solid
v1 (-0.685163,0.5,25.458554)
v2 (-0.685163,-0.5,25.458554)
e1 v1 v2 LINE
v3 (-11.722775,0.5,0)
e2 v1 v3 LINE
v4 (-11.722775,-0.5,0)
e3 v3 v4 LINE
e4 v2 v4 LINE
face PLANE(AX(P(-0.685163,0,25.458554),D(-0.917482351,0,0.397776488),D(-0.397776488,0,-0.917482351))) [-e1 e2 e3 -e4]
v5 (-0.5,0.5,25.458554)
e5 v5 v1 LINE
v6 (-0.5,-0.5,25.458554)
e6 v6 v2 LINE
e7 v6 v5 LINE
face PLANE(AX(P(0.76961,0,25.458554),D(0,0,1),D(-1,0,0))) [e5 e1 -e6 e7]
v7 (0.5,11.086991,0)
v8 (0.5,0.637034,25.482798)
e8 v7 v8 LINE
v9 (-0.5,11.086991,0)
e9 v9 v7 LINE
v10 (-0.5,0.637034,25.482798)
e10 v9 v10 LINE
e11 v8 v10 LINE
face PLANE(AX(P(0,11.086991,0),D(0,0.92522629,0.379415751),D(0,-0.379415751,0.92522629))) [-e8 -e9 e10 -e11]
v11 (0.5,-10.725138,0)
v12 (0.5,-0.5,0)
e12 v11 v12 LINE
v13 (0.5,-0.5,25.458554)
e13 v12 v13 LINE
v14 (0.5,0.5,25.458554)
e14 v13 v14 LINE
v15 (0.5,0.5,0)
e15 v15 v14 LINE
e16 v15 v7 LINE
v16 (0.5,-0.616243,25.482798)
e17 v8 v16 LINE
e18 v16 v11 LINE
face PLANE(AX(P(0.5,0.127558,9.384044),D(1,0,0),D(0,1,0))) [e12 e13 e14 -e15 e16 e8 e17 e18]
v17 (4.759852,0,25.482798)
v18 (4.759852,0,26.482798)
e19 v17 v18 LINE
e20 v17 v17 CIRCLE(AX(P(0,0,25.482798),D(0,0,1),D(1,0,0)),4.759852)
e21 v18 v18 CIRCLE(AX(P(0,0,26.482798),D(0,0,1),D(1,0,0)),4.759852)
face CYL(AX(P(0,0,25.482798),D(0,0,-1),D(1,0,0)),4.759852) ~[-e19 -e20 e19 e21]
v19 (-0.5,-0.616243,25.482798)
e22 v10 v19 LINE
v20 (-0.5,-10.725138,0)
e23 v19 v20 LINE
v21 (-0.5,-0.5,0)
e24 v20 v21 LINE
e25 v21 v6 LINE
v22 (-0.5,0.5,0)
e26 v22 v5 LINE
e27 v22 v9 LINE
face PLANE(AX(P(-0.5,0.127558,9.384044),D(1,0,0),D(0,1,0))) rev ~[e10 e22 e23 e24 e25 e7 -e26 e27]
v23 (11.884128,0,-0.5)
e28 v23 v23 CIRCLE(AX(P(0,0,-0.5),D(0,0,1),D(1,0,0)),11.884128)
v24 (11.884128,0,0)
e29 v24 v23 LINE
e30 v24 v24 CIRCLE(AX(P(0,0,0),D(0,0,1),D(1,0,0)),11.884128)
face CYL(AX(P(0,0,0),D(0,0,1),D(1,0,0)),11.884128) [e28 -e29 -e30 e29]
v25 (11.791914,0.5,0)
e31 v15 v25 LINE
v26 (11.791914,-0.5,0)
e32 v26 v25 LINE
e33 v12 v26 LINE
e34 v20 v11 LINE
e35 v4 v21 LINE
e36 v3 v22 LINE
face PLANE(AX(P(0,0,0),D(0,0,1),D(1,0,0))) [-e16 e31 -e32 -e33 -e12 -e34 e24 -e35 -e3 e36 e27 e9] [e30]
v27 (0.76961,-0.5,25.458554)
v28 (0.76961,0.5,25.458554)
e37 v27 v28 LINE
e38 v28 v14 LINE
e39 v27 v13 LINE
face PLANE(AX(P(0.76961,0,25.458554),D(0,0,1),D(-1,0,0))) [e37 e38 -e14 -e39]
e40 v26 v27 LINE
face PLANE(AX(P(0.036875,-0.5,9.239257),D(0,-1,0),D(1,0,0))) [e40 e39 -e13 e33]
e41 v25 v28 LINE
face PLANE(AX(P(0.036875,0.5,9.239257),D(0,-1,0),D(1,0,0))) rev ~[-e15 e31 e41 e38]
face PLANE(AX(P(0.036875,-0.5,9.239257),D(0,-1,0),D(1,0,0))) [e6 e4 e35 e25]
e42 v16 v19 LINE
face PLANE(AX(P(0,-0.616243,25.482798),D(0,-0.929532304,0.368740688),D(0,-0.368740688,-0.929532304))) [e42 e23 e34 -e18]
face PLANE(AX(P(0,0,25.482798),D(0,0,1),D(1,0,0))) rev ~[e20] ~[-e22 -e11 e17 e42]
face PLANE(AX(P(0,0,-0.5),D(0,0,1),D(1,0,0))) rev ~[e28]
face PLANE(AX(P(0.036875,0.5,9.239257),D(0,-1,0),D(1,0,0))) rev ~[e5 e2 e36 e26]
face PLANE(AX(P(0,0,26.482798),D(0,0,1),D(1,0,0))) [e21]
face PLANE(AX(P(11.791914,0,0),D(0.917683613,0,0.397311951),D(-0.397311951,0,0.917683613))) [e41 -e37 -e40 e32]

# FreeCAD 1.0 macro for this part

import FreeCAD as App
import Part
import Sketcher
Q = App.Units.Quantity

doc = App.newDocument("Part")
body = doc.addObject("PartDesign::Body", "Body")

sketch1 = doc.addObject("Sketcher::SketchObject", "Sketch")
body.addObject(sketch1)
sketch1.AttachmentSupport = (doc.XZ_Plane, [""])
sketch1.MapMode = "FlatFace"
sketch1.addGeometry(Part.LineSegment(App.Vector(0.8, 25.5, 0), App.Vector(-0.7, 25.5, 0)), False)
sketch1.addGeometry(Part.LineSegment(App.Vector(-0.7, 25.5, 0), App.Vector(-11.7, 0, 0)), False)
sketch1.addGeometry(Part.LineSegment(App.Vector(-11.7, 0, 0), App.Vector(11.8, 0, 0)), False)
sketch1.addGeometry(Part.LineSegment(App.Vector(11.8, 0, 0), App.Vector(0.8, 25.5, 0)), False)
sketch1.addConstraint(Sketcher.Constraint("Coincident", 0, 2, 1, 1))
sketch1.addConstraint(Sketcher.Constraint("Coincident", 1, 2, 2, 1))
sketch1.addConstraint(Sketcher.Constraint("Coincident", 2, 2, 3, 1))
sketch1.addConstraint(Sketcher.Constraint("Coincident", 3, 2, 0, 1))
sketch1.addConstraint(Sketcher.Constraint("Horizontal", 0))
sketch1.addConstraint(Sketcher.Constraint("Horizontal", 2))
sketch1.addConstraint(Sketcher.Constraint("PointOnObject", 1, 2, -1))
sketch1.addConstraint(Sketcher.Constraint("DistanceX", 2, 1, 2, 2, Q("23.514689 mm")))
sketch1.addConstraint(Sketcher.Constraint("Distance", 3, Q("27.742191 mm")))
sketch1.addConstraint(Sketcher.Constraint("DistanceX", 0, 2, 0, 1, Q("1.454773 mm")))
sketch1.addConstraint(Sketcher.Constraint("DistanceX", -1, 1, 3, 2, Q("0.76961 mm")))
sketch1.addConstraint(Sketcher.Constraint("Distance", 1, Q("27.748277 mm")))
pad1 = doc.addObject("PartDesign::Pad", "Pad")
body.addObject(pad1)
pad1.Profile = sketch1
pad1.Length = 1
pad1.Midplane = True

sketch2 = doc.addObject("Sketcher::SketchObject", "Sketch001")
body.addObject(sketch2)
sketch2.AttachmentSupport = (doc.YZ_Plane, [""])
sketch2.MapMode = "FlatFace"
sketch2.addGeometry(Part.LineSegment(App.Vector(-0.6, 25.5, 0), App.Vector(-10.7, 0, 0)), False)
sketch2.addGeometry(Part.LineSegment(App.Vector(-10.7, 0, 0), App.Vector(11.1, 0, 0)), False)
sketch2.addGeometry(Part.LineSegment(App.Vector(11.1, 0, 0), App.Vector(0.6, 25.5, 0)), False)
sketch2.addGeometry(Part.LineSegment(App.Vector(0.6, 25.5, 0), App.Vector(-0.6, 25.5, 0)), False)
sketch2.addConstraint(Sketcher.Constraint("Coincident", 0, 2, 1, 1))
sketch2.addConstraint(Sketcher.Constraint("Coincident", 1, 2, 2, 1))
sketch2.addConstraint(Sketcher.Constraint("Coincident", 2, 2, 3, 1))
sketch2.addConstraint(Sketcher.Constraint("Coincident", 3, 2, 0, 1))
sketch2.addConstraint(Sketcher.Constraint("Horizontal", 1))
sketch2.addConstraint(Sketcher.Constraint("Horizontal", 3))
sketch2.addConstraint(Sketcher.Constraint("PointOnObject", 0, 2, -1))
sketch2.addConstraint(Sketcher.Constraint("DistanceX", 1, 1, 1, 2, Q("21.812129 mm")))
sketch2.addConstraint(Sketcher.Constraint("DistanceX", 3, 2, 3, 1, Q("1.253277 mm")))
sketch2.addConstraint(Sketcher.Constraint("DistanceX", -1, 1, 1, 2, Q("11.086991 mm")))
sketch2.addConstraint(Sketcher.Constraint("DistanceX", 0, 2, 2, 2, Q("11.362172 mm")))
sketch2.addConstraint(Sketcher.Constraint("Distance", 0, Q("27.414645 mm")))
pad2 = doc.addObject("PartDesign::Pad", "Pad001")
body.addObject(pad2)
pad2.Profile = sketch2
pad2.Length = 1
pad2.Midplane = True

sketch3 = doc.addObject("Sketcher::SketchObject", "Sketch002")
body.addObject(sketch3)
sketch3.AttachmentSupport = (doc.XY_Plane, [""])
sketch3.MapMode = "FlatFace"
sketch3.addGeometry(Part.Circle(App.Vector(0, 0, 0), App.Vector(0, 0, 1), 12), False)
sketch3.addConstraint(Sketcher.Constraint("Coincident", 0, 3, -1, 1))
sketch3.addConstraint(Sketcher.Constraint("Diameter", 0, Q("23.768256 mm")))
pad3 = doc.addObject("PartDesign::Pad", "Pad002")
body.addObject(pad3)
pad3.Profile = sketch3
pad3.Length = 0.5
pad3.Reversed = True

sketch4 = doc.addObject("Sketcher::SketchObject", "Sketch003")
body.addObject(sketch4)
sketch4.AttachmentSupport = (doc.XY_Plane, [""])
sketch4.MapMode = "FlatFace"
sketch4.AttachmentOffset = App.Placement(App.Vector(0, 0, 25.482798), App.Rotation())
sketch4.addGeometry(Part.Circle(App.Vector(0, 0, 0), App.Vector(0, 0, 1), 4.8), False)
sketch4.addConstraint(Sketcher.Constraint("Coincident", 0, 3, -1, 1))
sketch4.addConstraint(Sketcher.Constraint("Diameter", 0, Q("9.519704 mm")))
pad4 = doc.addObject("PartDesign::Pad", "Pad003")
body.addObject(pad4)
pad4.Profile = sketch4
pad4.Length = 1

doc.recompute()
